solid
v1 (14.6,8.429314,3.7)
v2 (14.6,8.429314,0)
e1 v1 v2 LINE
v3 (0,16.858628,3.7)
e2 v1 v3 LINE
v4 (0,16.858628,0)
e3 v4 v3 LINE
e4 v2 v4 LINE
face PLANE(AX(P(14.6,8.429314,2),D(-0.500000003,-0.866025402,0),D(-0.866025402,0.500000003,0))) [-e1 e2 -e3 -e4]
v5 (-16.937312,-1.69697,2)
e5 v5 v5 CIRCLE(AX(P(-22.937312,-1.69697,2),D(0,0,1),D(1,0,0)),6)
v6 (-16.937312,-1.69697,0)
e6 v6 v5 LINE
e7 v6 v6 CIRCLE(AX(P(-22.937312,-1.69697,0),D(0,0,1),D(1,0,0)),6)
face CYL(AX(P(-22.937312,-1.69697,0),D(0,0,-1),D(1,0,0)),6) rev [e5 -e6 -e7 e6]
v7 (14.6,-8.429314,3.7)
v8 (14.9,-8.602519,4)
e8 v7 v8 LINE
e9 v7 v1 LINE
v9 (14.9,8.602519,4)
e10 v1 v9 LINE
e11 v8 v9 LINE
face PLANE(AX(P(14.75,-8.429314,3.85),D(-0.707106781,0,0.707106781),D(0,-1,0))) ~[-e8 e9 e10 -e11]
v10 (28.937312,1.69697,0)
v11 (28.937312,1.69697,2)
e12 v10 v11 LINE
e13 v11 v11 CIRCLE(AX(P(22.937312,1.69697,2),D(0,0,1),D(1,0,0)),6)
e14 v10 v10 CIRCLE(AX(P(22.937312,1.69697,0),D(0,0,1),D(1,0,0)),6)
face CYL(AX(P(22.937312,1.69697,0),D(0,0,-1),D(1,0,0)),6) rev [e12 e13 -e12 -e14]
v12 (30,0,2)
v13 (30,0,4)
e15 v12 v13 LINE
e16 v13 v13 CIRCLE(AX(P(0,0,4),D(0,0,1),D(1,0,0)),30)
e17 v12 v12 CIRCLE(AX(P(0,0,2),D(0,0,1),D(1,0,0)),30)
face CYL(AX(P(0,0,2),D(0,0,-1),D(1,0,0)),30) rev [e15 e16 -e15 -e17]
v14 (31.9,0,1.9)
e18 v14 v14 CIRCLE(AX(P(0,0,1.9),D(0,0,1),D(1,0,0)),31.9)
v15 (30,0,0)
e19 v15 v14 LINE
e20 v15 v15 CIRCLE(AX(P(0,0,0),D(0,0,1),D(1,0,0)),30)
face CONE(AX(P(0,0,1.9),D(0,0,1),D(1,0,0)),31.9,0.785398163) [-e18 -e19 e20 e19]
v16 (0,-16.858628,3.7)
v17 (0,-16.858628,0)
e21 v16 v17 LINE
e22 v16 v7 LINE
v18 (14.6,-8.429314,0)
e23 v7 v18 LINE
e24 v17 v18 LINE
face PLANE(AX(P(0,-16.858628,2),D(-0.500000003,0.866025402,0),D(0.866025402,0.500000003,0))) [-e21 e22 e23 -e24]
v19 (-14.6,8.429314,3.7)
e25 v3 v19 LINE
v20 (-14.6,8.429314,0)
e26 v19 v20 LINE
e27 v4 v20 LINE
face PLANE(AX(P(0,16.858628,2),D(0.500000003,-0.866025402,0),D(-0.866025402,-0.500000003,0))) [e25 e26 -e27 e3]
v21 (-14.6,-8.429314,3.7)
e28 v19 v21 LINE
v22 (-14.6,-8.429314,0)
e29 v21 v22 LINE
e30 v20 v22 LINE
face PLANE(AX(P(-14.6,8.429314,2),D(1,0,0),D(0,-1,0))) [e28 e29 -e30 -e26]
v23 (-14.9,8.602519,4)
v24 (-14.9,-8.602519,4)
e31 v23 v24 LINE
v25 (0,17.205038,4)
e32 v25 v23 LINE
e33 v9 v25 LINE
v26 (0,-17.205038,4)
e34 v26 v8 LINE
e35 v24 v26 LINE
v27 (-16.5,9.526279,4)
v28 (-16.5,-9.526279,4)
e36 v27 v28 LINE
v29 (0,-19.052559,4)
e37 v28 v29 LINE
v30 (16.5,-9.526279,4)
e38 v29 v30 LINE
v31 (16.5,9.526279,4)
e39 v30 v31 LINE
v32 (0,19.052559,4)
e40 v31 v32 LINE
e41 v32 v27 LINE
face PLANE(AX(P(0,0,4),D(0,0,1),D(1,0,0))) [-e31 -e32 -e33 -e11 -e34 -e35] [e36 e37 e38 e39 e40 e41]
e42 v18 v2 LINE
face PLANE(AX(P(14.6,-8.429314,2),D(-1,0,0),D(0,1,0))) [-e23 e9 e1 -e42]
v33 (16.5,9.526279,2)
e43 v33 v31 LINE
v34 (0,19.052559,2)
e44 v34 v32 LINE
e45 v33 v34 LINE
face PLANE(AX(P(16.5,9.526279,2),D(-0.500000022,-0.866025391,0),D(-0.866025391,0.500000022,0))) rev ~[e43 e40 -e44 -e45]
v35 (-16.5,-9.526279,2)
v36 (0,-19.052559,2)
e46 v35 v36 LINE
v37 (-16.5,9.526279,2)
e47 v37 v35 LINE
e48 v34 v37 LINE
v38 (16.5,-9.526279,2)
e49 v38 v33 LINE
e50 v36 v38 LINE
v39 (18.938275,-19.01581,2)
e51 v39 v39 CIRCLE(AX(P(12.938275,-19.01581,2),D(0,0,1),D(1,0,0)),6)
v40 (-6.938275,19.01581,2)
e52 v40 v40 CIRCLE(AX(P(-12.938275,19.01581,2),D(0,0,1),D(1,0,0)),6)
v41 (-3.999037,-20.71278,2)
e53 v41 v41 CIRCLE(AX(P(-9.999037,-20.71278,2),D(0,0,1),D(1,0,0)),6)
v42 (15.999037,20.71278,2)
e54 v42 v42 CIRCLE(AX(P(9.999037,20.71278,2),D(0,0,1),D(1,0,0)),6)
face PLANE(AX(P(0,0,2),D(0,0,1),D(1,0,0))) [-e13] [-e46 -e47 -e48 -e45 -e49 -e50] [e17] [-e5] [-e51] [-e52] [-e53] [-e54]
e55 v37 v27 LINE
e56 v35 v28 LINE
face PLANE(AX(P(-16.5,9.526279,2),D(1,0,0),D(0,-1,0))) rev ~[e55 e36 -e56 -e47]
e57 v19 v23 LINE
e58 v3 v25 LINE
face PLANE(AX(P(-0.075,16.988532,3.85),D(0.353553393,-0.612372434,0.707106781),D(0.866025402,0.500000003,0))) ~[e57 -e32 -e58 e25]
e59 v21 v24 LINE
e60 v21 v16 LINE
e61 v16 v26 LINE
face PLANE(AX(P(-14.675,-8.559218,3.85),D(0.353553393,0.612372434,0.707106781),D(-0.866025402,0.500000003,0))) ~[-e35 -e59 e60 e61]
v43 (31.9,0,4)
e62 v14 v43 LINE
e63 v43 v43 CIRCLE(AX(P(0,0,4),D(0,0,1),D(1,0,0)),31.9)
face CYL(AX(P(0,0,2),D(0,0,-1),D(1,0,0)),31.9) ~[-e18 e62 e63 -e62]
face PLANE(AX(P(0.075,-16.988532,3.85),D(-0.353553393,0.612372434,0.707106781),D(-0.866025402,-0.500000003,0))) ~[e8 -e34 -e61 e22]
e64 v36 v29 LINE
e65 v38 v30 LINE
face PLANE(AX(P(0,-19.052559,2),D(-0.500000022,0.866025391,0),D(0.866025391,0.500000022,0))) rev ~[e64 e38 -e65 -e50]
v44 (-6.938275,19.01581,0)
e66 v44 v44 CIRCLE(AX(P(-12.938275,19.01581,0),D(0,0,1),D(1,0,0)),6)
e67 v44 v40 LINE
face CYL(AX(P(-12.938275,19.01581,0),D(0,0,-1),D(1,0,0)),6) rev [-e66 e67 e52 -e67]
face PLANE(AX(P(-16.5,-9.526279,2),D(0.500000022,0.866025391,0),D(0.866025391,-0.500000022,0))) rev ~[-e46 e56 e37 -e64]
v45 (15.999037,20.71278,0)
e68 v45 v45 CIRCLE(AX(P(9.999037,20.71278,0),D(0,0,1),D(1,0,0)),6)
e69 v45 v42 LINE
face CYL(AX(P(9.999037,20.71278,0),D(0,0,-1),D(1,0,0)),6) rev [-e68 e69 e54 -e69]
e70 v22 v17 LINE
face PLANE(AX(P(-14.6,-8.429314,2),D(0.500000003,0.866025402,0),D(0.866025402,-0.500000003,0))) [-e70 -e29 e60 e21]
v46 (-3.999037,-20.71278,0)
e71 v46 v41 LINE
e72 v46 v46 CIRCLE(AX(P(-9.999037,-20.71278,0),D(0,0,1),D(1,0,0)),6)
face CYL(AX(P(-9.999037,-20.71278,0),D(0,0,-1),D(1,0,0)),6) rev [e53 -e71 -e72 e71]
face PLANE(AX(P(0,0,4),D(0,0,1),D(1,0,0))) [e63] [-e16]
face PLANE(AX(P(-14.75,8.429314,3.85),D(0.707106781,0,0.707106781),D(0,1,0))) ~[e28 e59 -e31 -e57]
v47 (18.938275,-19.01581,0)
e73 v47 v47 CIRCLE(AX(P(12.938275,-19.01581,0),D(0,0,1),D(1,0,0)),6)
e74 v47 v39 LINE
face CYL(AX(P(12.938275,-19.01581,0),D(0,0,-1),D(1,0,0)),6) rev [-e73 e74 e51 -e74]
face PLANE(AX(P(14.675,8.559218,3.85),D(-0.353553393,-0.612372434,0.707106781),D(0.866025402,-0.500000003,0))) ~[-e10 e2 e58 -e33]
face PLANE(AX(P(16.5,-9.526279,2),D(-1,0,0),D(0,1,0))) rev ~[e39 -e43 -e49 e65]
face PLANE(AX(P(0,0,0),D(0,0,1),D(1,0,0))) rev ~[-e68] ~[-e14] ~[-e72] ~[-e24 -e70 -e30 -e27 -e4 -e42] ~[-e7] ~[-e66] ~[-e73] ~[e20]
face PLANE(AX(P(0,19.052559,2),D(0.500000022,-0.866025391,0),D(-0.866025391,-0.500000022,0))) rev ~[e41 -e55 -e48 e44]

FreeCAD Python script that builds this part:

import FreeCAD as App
import Part
import Sketcher
from FreeCAD import Vector
Q = App.Units.Quantity


def edges_at(feature, points):
    """Names of the edges that pass closest to the given points."""
    edges = feature.Shape.Edges
    near = lambda p: min(range(len(edges)), key=lambda i: edges[i].distToShape(Part.Vertex(*p))[0])
    return sorted({f"Edge{near(p) + 1}" for p in points})

doc = App.newDocument("Part")
body = doc.addObject("PartDesign::Body", "Body")

# Sketch on XY plane
sketch1 = doc.addObject("Sketcher::SketchObject", "Sketch")
body.addObject(sketch1)
sketch1.AttachmentSupport = (doc.XY_Plane, [""])
sketch1.MapMode = "FlatFace"
sketch1.addGeometry(Part.Circle(Vector(0, 0, 0), Vector(0, 0, 1), 31.9), False)
sketch1.addGeometry(Part.Circle(Vector(-9.999037, -20.71278, 0), Vector(0, 0, 1), 6), False)
sketch1.addGeometry(Part.Circle(Vector(-22.937312, -1.69697, 0), Vector(0, 0, 1), 6), False)
sketch1.addGeometry(Part.Circle(Vector(12.938275, -19.01581, 0), Vector(0, 0, 1), 6), False)
sketch1.addGeometry(Part.LineSegment(Vector(-14.6, 8.429314, 0), Vector(0, 16.858628, 0)), False)
sketch1.addGeometry(Part.LineSegment(Vector(0, 16.858628, 0), Vector(14.6, 8.429314, 0)), False)
sketch1.addGeometry(Part.LineSegment(Vector(14.6, 8.429314, 0), Vector(14.6, -8.429314, 0)), False)
sketch1.addGeometry(Part.LineSegment(Vector(14.6, -8.429314, 0), Vector(0, -16.858628, 0)), False)
sketch1.addGeometry(Part.LineSegment(Vector(0, -16.858628, 0), Vector(-14.6, -8.429314, 0)), False)
sketch1.addGeometry(Part.LineSegment(Vector(-14.6, -8.429314, 0), Vector(-14.6, 8.429314, 0)), False)
sketch1.addGeometry(Part.Circle(Vector(-12.938275, 19.01581, 0), Vector(0, 0, 1), 6), False)
sketch1.addGeometry(Part.Circle(Vector(22.937312, 1.69697, 0), Vector(0, 0, 1), 6), False)
sketch1.addGeometry(Part.Circle(Vector(9.999037, 20.71278, 0), Vector(0, 0, 1), 6), False)
sketch1.addConstraint(Sketcher.Constraint("Coincident", 4, 2, 5, 1))
sketch1.addConstraint(Sketcher.Constraint("Coincident", 5, 2, 6, 1))
sketch1.addConstraint(Sketcher.Constraint("Coincident", 6, 2, 7, 1))
sketch1.addConstraint(Sketcher.Constraint("Coincident", 7, 2, 8, 1))
sketch1.addConstraint(Sketcher.Constraint("Coincident", 8, 2, 9, 1))
sketch1.addConstraint(Sketcher.Constraint("Coincident", 9, 2, 4, 1))
sketch1.addConstraint(Sketcher.Constraint("Vertical", 6))
sketch1.addConstraint(Sketcher.Constraint("Vertical", 9))
sketch1.addConstraint(Sketcher.Constraint("Coincident", 0, 3, -1, 1))
sketch1.addConstraint(Sketcher.Constraint("Equal", 1, 2))
sketch1.addConstraint(Sketcher.Constraint("Equal", 2, 3))
sketch1.addConstraint(Sketcher.Constraint("Equal", 3, 10))
sketch1.addConstraint(Sketcher.Constraint("Equal", 10, 11))
sketch1.addConstraint(Sketcher.Constraint("Equal", 11, 12))
sketch1.addConstraint(Sketcher.Constraint("Symmetric", 3, 3, 10, 3, -1, 1))
sketch1.addConstraint(Sketcher.Constraint("Symmetric", 2, 3, 11, 3, -1, 1))
sketch1.addConstraint(Sketcher.Constraint("Symmetric", 1, 3, 12, 3, -1, 1))
sketch1.addConstraint(Sketcher.Constraint("Symmetric", 4, 2, 7, 2, -1, 1))
sketch1.addConstraint(Sketcher.Constraint("Symmetric", 5, 2, 8, 2, -1, 1))
sketch1.addConstraint(Sketcher.Constraint("PointOnObject", 4, 2, -2))
sketch1.addConstraint(Sketcher.Constraint("Parallel", 4, 7))
sketch1.addConstraint(Sketcher.Constraint("Horizontal", 6, 2, 8, 2))
sketch1.addConstraint(Sketcher.Constraint("Diameter", 1, 12.0))
sketch1.addConstraint(Sketcher.Constraint("Diameter", 0, 63.8))
sketch1.addConstraint(Sketcher.Constraint("Angle", 4, Q("30 deg")))
sketch1.addConstraint(Sketcher.Constraint("DistanceX", -1, 1, 5, 2, 14.6))
sketch1.addConstraint(Sketcher.Constraint("DistanceY", 2, 3, 4, 2, 18.555598))
sketch1.addConstraint(Sketcher.Constraint("DistanceY", 6, 2, 6, 1, 16.858628))
sketch1.addConstraint(Sketcher.Constraint("DistanceY", 1, 3, -1, 1, 20.71278))
sketch1.addConstraint(Sketcher.Constraint("DistanceX", 2, 3, -1, 1, 22.937312))
sketch1.addConstraint(Sketcher.Constraint("DistanceY", 3, 3, -1, 1, 19.01581))
sketch1.addConstraint(Sketcher.Constraint("DistanceX", 1, 3, 3, 3, 22.937312))
sketch1.addConstraint(Sketcher.Constraint("DistanceX", 10, 3, 1, 3, 2.939238))
pad1 = doc.addObject("PartDesign::Pad", "Pad")
body.addObject(pad1)
pad1.Profile = sketch1
pad1.Length = 2

# Sketch on XY plane
sketch2 = doc.addObject("Sketcher::SketchObject", "Sketch001")
body.addObject(sketch2)
sketch2.AttachmentSupport = (doc.XY_Plane, [""])
sketch2.MapMode = "FlatFace"
sketch2.AttachmentOffset = App.Placement(Vector(0, 0, 2), App.Rotation())
sketch2.addGeometry(Part.Circle(Vector(0, 0, 0), Vector(0, 0, 1), 31.9), False)
sketch2.addGeometry(Part.Circle(Vector(0, 0, 0), Vector(0, 0, 1), 30), False)
sketch2.addConstraint(Sketcher.Constraint("Coincident", 0, 3, -1, 1))
sketch2.addConstraint(Sketcher.Constraint("Coincident", 1, 3, -1, 1))
sketch2.addConstraint(Sketcher.Constraint("Diameter", 1, 60.0))
sketch2.addConstraint(Sketcher.Constraint("Diameter", 0, 63.8))
pad2 = doc.addObject("PartDesign::Pad", "Pad001")
body.addObject(pad2)
pad2.Profile = sketch2
pad2.Length = 2

# Sketch on XY plane
sketch3 = doc.addObject("Sketcher::SketchObject", "Sketch002")
body.addObject(sketch3)
sketch3.AttachmentSupport = (doc.XY_Plane, [""])
sketch3.MapMode = "FlatFace"
sketch3.AttachmentOffset = App.Placement(Vector(0, 0, 2), App.Rotation())
sketch3.addGeometry(Part.LineSegment(Vector(0, 19.052559, 0), Vector(-16.5, 9.526279, 0)), False)
sketch3.addGeometry(Part.LineSegment(Vector(-16.5, 9.526279, 0), Vector(-16.5, -9.526279, 0)), False)
sketch3.addGeometry(Part.LineSegment(Vector(-16.5, -9.526279, 0), Vector(0, -19.052559, 0)), False)
sketch3.addGeometry(Part.LineSegment(Vector(0, -19.052559, 0), Vector(16.5, -9.526279, 0)), False)
sketch3.addGeometry(Part.LineSegment(Vector(16.5, -9.526279, 0), Vector(16.5, 9.526279, 0)), False)
sketch3.addGeometry(Part.LineSegment(Vector(16.5, 9.526279, 0), Vector(0, 19.052559, 0)), False)
sketch3.addGeometry(Part.LineSegment(Vector(-14.6, 8.429314, 0), Vector(0, 16.858628, 0)), False)
sketch3.addGeometry(Part.LineSegment(Vector(0, 16.858628, 0), Vector(14.6, 8.429314, 0)), False)
sketch3.addGeometry(Part.LineSegment(Vector(14.6, 8.429314, 0), Vector(14.6, -8.429314, 0)), False)
sketch3.addGeometry(Part.LineSegment(Vector(14.6, -8.429314, 0), Vector(0, -16.858628, 0)), False)
sketch3.addGeometry(Part.LineSegment(Vector(0, -16.858628, 0), Vector(-14.6, -8.429314, 0)), False)
sketch3.addGeometry(Part.LineSegment(Vector(-14.6, -8.429314, 0), Vector(-14.6, 8.429314, 0)), False)
sketch3.addConstraint(Sketcher.Constraint("Coincident", 0, 2, 1, 1))
sketch3.addConstraint(Sketcher.Constraint("Coincident", 1, 2, 2, 1))
sketch3.addConstraint(Sketcher.Constraint("Coincident", 2, 2, 3, 1))
sketch3.addConstraint(Sketcher.Constraint("Coincident", 3, 2, 4, 1))
sketch3.addConstraint(Sketcher.Constraint("Coincident", 4, 2, 5, 1))
sketch3.addConstraint(Sketcher.Constraint("Coincident", 5, 2, 0, 1))
sketch3.addConstraint(Sketcher.Constraint("Coincident", 6, 2, 7, 1))
sketch3.addConstraint(Sketcher.Constraint("Coincident", 7, 2, 8, 1))
sketch3.addConstraint(Sketcher.Constraint("Coincident", 8, 2, 9, 1))
sketch3.addConstraint(Sketcher.Constraint("Coincident", 9, 2, 10, 1))
sketch3.addConstraint(Sketcher.Constraint("Coincident", 10, 2, 11, 1))
sketch3.addConstraint(Sketcher.Constraint("Coincident", 11, 2, 6, 1))
sketch3.addConstraint(Sketcher.Constraint("Vertical", 1))
sketch3.addConstraint(Sketcher.Constraint("Vertical", 4))
sketch3.addConstraint(Sketcher.Constraint("Vertical", 8))
sketch3.addConstraint(Sketcher.Constraint("Vertical", 11))
sketch3.addConstraint(Sketcher.Constraint("Symmetric", 0, 2, 3, 2, -1, 1))
sketch3.addConstraint(Sketcher.Constraint("Symmetric", 2, 2, 5, 2, -1, 1))
sketch3.addConstraint(Sketcher.Constraint("Symmetric", 6, 2, 9, 2, -1, 1))
sketch3.addConstraint(Sketcher.Constraint("Symmetric", 7, 2, 10, 2, -1, 1))
sketch3.addConstraint(Sketcher.Constraint("PointOnObject", 2, 2, -2))
sketch3.addConstraint(Sketcher.Constraint("PointOnObject", 6, 2, -2))
sketch3.addConstraint(Sketcher.Constraint("Parallel", 2, 5))
sketch3.addConstraint(Sketcher.Constraint("Parallel", 3, 6))
sketch3.addConstraint(Sketcher.Constraint("Parallel", 5, 7))
sketch3.addConstraint(Sketcher.Constraint("Parallel", 6, 9))
sketch3.addConstraint(Sketcher.Constraint("Horizontal", 1, 2, 3, 2))
sketch3.addConstraint(Sketcher.Constraint("Angle", 0, Q("-149.999999 deg")))
sketch3.addConstraint(Sketcher.Constraint("DistanceX", 1, 2, 3, 2, 33.0))
sketch3.addConstraint(Sketcher.Constraint("DistanceX", -1, 1, 7, 2, 14.6))
sketch3.addConstraint(Sketcher.Constraint("DistanceY", 1, 2, 1, 1, 19.052558))
sketch3.addConstraint(Sketcher.Constraint("DistanceY", 8, 2, 8, 1, 16.858628))
pad3 = doc.addObject("PartDesign::Pad", "Pad002")
body.addObject(pad3)
pad3.Profile = sketch3
pad3.Length = 2
doc.recompute()

chamfer = doc.addObject("PartDesign::Chamfer", "Chamfer")
body.addObject(chamfer)
chamfer.Base = (pad3, edges_at(pad3, [(-31.9, 0, 0)]))
chamfer.Size = 1.9
doc.recompute()

chamfer2 = doc.addObject("PartDesign::Chamfer", "Chamfer001")
body.addObject(chamfer2)
chamfer2.Base = (chamfer, edges_at(chamfer, [
    (-7.3, -12.644, 4),
    (-14.6, 0, 4),
    (-7.3, 12.644, 4),
    (7.3, 12.644, 4),
    (14.6, 0, 4),
    (7.3, -12.644, 4),
]))
chamfer2.Size = 0.3

doc.recompute()
